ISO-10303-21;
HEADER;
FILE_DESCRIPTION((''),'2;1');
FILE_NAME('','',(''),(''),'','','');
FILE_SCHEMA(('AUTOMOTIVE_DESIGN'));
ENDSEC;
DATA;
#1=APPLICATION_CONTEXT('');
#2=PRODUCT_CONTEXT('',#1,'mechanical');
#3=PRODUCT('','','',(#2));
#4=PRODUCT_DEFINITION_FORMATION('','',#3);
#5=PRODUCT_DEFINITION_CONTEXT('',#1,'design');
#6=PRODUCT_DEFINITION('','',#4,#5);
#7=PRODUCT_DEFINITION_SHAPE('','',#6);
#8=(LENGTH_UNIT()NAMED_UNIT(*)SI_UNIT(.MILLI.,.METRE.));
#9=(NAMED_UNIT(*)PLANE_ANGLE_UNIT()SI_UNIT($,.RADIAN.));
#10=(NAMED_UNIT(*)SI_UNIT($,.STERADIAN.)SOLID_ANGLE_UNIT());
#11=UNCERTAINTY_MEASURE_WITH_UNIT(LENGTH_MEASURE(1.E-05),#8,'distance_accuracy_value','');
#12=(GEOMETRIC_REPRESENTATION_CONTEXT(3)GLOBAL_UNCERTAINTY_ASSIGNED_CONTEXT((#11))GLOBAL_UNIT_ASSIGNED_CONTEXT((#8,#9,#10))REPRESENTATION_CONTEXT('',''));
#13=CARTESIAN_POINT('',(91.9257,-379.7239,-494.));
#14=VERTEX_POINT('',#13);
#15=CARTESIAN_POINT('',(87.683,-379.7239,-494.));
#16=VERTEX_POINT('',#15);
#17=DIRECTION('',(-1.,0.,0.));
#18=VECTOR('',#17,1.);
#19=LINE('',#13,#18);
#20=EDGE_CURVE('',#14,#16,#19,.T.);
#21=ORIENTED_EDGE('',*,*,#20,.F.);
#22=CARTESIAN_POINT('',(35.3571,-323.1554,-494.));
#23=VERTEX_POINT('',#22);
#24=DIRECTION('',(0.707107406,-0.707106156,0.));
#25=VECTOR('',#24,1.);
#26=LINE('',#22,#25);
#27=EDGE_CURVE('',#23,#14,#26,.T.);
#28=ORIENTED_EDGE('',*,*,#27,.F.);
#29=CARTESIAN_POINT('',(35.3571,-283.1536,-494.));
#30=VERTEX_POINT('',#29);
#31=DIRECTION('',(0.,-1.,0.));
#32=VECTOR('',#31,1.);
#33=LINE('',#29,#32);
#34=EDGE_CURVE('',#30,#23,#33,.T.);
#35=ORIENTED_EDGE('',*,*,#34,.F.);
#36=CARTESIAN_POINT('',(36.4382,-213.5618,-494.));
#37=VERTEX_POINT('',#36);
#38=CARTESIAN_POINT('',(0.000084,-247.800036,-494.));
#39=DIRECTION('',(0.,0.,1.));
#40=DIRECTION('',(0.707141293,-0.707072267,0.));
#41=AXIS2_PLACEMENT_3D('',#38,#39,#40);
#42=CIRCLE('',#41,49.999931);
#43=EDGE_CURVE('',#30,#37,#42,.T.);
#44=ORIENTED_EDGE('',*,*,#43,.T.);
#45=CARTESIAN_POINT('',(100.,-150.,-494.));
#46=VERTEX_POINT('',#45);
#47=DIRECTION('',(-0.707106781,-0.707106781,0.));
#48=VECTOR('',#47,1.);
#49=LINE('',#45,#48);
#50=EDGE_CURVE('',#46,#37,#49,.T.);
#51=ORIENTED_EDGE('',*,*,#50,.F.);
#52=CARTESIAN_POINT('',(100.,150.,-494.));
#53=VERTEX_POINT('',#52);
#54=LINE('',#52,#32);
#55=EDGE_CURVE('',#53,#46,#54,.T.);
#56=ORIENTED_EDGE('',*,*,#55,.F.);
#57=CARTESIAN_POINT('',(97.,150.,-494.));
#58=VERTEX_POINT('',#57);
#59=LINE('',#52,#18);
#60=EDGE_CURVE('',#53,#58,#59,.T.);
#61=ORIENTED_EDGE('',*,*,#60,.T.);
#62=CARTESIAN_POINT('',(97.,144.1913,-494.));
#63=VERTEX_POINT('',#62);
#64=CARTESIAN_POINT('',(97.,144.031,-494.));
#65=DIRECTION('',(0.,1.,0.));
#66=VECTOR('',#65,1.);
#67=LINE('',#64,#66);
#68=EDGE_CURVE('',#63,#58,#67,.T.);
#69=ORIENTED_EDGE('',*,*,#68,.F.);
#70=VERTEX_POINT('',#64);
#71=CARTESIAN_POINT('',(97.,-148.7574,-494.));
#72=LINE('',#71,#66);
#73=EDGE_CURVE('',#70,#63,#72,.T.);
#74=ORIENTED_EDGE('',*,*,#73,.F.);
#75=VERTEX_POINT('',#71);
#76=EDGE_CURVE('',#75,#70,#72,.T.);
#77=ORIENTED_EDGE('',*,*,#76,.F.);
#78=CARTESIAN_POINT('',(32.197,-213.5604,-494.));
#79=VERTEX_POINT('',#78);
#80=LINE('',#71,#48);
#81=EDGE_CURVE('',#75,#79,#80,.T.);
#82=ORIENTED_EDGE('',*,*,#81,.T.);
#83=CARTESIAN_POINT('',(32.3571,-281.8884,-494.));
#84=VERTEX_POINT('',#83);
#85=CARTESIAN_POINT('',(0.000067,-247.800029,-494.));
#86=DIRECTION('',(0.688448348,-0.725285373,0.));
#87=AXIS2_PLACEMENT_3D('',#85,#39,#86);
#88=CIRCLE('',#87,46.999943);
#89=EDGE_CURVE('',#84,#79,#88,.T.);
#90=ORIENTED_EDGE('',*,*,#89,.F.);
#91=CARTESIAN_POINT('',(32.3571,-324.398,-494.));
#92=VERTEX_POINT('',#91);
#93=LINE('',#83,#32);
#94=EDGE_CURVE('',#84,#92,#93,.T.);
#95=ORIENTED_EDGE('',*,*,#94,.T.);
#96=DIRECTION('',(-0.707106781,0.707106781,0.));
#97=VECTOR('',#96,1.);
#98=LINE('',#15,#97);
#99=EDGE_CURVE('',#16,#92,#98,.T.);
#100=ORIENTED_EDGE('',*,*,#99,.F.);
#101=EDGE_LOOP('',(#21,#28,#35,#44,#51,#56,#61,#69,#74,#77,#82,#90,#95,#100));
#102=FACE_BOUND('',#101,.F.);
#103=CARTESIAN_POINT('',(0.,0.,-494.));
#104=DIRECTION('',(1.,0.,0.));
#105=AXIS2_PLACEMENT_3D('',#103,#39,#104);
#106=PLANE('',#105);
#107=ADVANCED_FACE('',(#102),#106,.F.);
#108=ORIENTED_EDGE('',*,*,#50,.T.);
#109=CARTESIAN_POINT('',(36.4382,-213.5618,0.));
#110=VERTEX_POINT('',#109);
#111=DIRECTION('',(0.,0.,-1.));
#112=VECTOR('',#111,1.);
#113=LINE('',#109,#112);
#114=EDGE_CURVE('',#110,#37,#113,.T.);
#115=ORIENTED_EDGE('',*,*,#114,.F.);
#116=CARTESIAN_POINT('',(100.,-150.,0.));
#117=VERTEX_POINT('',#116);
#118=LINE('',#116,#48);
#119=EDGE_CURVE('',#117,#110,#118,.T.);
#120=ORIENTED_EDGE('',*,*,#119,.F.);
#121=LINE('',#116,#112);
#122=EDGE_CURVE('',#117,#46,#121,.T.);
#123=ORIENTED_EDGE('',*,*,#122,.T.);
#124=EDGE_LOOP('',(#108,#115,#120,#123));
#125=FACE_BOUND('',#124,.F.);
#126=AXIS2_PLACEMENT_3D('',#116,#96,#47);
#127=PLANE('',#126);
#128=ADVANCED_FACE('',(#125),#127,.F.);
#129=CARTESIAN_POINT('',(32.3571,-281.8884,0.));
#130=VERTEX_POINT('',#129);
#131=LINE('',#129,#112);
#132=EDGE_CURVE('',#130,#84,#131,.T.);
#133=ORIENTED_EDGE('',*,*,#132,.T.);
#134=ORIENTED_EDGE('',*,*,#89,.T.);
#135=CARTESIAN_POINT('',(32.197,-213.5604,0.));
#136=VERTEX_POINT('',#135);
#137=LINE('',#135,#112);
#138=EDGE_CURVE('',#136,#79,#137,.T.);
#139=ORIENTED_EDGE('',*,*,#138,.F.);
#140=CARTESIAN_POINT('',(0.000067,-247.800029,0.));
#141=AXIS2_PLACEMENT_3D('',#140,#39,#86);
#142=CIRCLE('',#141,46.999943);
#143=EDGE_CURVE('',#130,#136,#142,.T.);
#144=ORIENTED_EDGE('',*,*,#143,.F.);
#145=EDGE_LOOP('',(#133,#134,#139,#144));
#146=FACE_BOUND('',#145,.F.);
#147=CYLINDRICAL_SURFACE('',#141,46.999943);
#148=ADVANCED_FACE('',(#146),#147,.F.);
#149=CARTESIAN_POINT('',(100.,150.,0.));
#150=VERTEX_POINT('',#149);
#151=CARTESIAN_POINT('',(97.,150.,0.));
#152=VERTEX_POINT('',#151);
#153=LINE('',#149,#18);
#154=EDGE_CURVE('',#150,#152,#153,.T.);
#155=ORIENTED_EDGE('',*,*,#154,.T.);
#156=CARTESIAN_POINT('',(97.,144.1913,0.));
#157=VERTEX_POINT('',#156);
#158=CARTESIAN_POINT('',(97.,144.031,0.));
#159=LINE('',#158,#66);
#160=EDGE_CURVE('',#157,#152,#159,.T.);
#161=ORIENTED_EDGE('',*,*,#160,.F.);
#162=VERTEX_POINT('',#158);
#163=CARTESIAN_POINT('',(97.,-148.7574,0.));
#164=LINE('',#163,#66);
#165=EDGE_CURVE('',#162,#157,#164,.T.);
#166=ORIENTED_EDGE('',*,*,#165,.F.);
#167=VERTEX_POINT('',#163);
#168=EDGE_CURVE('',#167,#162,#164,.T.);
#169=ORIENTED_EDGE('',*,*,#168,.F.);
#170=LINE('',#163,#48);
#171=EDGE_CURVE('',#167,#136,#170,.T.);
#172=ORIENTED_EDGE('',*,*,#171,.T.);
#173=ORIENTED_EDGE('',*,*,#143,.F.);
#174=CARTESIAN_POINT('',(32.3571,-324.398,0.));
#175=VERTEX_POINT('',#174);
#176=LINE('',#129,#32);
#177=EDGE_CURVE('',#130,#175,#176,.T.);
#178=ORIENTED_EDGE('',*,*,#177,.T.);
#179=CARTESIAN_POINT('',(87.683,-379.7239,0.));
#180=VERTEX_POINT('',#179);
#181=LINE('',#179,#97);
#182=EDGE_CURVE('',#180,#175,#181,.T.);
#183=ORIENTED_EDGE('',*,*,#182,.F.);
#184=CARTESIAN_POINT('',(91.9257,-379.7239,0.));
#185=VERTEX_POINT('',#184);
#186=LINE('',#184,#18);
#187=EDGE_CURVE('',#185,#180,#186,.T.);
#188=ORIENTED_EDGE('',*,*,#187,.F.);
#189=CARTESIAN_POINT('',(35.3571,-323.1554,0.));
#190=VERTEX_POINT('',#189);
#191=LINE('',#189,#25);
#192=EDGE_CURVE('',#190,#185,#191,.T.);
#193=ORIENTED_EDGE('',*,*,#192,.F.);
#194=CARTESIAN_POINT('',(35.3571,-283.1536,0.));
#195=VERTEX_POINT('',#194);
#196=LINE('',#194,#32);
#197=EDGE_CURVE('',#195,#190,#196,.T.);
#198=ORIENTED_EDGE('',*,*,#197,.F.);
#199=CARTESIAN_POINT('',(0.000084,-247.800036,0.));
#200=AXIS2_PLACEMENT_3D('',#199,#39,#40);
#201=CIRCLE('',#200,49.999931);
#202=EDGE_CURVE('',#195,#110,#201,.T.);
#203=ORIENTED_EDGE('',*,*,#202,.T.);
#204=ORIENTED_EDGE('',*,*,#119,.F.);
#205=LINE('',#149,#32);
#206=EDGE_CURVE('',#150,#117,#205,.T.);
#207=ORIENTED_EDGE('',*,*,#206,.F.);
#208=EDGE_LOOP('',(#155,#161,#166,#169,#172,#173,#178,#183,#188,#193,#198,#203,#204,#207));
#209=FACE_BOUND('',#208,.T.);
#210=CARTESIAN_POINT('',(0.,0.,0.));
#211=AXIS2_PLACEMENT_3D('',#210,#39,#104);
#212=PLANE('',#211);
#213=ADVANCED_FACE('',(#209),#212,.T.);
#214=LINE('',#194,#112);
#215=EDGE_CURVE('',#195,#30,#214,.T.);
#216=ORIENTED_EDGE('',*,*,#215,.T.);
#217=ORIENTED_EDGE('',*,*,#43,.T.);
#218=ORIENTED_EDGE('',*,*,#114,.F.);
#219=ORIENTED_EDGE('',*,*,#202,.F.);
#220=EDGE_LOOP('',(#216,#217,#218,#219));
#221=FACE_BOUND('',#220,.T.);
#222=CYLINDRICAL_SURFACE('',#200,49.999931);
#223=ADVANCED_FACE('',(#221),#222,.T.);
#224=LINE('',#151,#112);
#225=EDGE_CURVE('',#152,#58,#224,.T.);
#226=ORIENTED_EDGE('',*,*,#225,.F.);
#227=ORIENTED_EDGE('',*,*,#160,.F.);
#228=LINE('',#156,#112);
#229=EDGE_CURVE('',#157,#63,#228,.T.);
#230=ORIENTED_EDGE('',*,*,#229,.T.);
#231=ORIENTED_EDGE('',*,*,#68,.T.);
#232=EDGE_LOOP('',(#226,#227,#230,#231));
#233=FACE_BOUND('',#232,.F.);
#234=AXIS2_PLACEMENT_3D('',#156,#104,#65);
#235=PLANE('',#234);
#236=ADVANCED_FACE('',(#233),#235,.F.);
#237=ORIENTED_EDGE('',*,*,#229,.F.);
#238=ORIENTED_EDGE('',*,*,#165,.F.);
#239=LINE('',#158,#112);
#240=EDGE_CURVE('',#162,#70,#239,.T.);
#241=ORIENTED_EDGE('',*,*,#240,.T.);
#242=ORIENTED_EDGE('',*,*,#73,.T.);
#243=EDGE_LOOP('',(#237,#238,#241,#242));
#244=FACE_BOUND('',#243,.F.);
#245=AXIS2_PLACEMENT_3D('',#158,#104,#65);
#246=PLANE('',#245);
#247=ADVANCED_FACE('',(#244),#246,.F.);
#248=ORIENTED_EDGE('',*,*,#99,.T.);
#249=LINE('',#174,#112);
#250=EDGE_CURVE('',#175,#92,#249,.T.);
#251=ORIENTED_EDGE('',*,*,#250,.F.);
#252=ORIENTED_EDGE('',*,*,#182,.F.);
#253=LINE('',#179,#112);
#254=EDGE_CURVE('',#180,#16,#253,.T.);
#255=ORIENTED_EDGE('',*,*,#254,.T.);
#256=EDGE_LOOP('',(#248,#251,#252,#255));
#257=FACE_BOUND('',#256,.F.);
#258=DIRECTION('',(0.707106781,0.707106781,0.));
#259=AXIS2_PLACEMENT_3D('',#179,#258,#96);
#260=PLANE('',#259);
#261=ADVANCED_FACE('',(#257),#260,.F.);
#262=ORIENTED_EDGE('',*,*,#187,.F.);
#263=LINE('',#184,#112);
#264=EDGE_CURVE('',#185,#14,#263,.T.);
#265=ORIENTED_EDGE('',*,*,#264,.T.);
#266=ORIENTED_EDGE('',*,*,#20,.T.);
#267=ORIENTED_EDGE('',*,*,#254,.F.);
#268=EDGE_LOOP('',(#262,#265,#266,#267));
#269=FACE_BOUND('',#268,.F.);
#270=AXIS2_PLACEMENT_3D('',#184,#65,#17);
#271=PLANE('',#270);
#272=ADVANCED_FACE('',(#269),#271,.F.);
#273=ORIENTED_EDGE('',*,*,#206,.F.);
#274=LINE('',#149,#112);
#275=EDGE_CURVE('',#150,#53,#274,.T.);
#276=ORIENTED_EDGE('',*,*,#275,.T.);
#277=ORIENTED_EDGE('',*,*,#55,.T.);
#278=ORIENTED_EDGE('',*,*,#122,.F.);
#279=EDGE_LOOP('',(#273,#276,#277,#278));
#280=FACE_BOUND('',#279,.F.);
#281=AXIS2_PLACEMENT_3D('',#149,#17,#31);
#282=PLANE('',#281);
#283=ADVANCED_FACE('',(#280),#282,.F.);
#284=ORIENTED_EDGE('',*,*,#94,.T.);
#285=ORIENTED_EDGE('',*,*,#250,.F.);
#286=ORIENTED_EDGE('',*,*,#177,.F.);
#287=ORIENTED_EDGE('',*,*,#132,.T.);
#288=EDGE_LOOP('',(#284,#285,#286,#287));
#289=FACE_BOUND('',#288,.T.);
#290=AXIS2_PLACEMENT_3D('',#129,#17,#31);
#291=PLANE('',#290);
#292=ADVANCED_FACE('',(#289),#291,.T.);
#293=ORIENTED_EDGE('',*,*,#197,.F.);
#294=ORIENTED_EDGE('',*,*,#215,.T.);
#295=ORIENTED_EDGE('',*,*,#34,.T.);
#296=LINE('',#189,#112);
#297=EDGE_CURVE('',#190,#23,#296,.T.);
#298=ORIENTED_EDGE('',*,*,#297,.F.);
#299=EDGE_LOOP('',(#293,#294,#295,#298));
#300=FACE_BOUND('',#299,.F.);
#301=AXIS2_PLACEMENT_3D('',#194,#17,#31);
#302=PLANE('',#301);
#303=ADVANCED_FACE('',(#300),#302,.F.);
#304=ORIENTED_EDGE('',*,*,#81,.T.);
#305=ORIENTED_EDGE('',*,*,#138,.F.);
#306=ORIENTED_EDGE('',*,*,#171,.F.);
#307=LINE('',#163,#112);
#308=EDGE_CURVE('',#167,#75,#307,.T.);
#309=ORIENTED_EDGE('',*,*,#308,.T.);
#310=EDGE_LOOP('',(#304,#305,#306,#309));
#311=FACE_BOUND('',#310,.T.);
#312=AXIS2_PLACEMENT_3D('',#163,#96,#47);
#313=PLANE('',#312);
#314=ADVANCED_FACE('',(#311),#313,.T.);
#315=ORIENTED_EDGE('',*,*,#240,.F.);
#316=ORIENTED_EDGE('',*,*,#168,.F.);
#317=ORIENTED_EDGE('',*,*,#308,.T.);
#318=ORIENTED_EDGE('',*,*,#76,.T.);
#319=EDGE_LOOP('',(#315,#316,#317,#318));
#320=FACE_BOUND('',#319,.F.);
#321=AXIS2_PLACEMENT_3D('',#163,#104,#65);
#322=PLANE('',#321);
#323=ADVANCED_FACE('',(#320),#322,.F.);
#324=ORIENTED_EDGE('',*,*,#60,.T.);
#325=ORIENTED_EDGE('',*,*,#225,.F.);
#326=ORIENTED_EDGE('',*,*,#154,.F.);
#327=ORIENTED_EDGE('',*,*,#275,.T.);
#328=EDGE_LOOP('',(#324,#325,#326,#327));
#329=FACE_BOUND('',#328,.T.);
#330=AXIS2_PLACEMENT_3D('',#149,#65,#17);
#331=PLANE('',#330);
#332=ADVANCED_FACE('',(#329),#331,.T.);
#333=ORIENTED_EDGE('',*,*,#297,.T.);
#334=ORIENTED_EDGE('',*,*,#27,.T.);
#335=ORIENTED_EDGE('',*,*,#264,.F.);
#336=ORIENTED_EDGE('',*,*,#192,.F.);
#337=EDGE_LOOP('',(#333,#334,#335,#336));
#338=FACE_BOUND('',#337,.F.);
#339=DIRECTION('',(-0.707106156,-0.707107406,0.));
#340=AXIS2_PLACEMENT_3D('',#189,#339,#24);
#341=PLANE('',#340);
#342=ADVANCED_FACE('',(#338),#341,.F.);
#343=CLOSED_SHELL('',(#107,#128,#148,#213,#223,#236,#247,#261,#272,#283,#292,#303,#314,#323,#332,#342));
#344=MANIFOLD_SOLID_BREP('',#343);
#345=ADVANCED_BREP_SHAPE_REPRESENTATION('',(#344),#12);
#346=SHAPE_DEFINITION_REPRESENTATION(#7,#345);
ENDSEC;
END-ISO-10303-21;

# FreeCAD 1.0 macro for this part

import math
import FreeCAD as App
import Part
import Sketcher

V = App.Vector
Q = App.Units.Quantity

doc = App.newDocument("Part")
params = doc.addObject("Spreadsheet::Sheet", "Params")
for row, (alias, value) in enumerate([
    ("sketch1_radius", "47 mm"),
    ("sketch1_width", "3 mm"),
    ("sketch1_radius2", "50 mm"),
    ("sketch1_height", "300 mm"),
    ("sketch1_length", "80 mm"),
    ("pad1_length", "494 mm"),
], start=1):
    params.set(f"A{row}", alias)
    params.set(f"B{row}", "=" + value)
    params.setAlias(f"B{row}", alias)

body = doc.addObject("PartDesign::Body", "Body")

# Sketch on XY plane
sketch1 = body.newObject("Sketcher::SketchObject", "Sketch")
sketch1.AttachmentSupport = (doc.getObject("XY_Plane"), [""])
sketch1.MapMode = "FlatFace"
sketch1.addGeometry(Part.LineSegment(V(100, -150, 0), V(100, 150, 0)), False)
sketch1.addGeometry(Part.LineSegment(V(100, 150, 0), V(97, 150, 0)), False)
sketch1.addGeometry(Part.LineSegment(V(97, 150, 0), V(97, -148.8, 0)), False)
sketch1.addGeometry(Part.LineSegment(V(97, -148.8, 0), V(32.2, -213.6, 0)), False)
sketch1.addGeometry(Part.ArcOfCircle(Part.Circle(V(0, -247.8, 0), V(0, 0, 1), 47), math.radians(-46), math.radians(47)), False)
sketch1.addGeometry(Part.LineSegment(V(32.4, -281.9, 0), V(32.4, -324.4, 0)), False)
sketch1.addGeometry(Part.LineSegment(V(32.4, -324.4, 0), V(87.7, -379.7, 0)), False)
sketch1.addGeometry(Part.LineSegment(V(87.7, -379.7, 0), V(91.9, -379.7, 0)), False)
sketch1.addGeometry(Part.LineSegment(V(91.9, -379.7, 0), V(35.4, -323.2, 0)), False)
sketch1.addGeometry(Part.LineSegment(V(35.4, -323.2, 0), V(35.4, -283.2, 0)), False)
sketch1.addGeometry(Part.ArcOfCircle(Part.Circle(V(0, -247.8, 0), V(0, 0, 1), 50), math.radians(-45), math.radians(43)), False)
sketch1.addGeometry(Part.LineSegment(V(36.4, -213.6, 0), V(100, -150, 0)), False)
sketch1.addConstraint(Sketcher.Constraint("Coincident", 0, 2, 1, 1))
sketch1.addConstraint(Sketcher.Constraint("Coincident", 1, 2, 2, 1))
sketch1.addConstraint(Sketcher.Constraint("Coincident", 2, 2, 3, 1))
sketch1.addConstraint(Sketcher.Constraint("Coincident", 3, 2, 4, 2))
sketch1.addConstraint(Sketcher.Constraint("Coincident", 4, 1, 5, 1))
sketch1.addConstraint(Sketcher.Constraint("Coincident", 5, 2, 6, 1))
sketch1.addConstraint(Sketcher.Constraint("Coincident", 6, 2, 7, 1))
sketch1.addConstraint(Sketcher.Constraint("Coincident", 7, 2, 8, 1))
sketch1.addConstraint(Sketcher.Constraint("Coincident", 8, 2, 9, 1))
sketch1.addConstraint(Sketcher.Constraint("Coincident", 9, 2, 10, 1))
sketch1.addConstraint(Sketcher.Constraint("Coincident", 10, 2, 11, 1))
sketch1.addConstraint(Sketcher.Constraint("Coincident", 11, 2, 0, 1))
sketch1.addConstraint(Sketcher.Constraint("Vertical", 0))
sketch1.addConstraint(Sketcher.Constraint("Horizontal", 1))
sketch1.addConstraint(Sketcher.Constraint("Vertical", 2))
sketch1.addConstraint(Sketcher.Constraint("Vertical", 5))
sketch1.addConstraint(Sketcher.Constraint("Horizontal", 7))
sketch1.addConstraint(Sketcher.Constraint("Vertical", 9))
sketch1.addConstraint(Sketcher.Constraint("Coincident", 10, 3, 4, 3))
sketch1.addConstraint(Sketcher.Constraint("PointOnObject", 4, 3, -2))
sketch1.addConstraint(Sketcher.Constraint("Perpendicular", 3, 6))
sketch1.addConstraint(Sketcher.Constraint("Parallel", 6, 8))
sketch1.addConstraint(Sketcher.Constraint("Perpendicular", 8, 11))
sketch1.addConstraint(Sketcher.Constraint("Radius", 4, 47.0))
sketch1.addConstraint(Sketcher.Constraint("DistanceX", 1, 2, 1, 1, 3.0))
sketch1.addConstraint(Sketcher.Constraint("Radius", 10, 50.0))
sketch1.addConstraint(Sketcher.Constraint("DistanceX", 5, 2, 8, 2, 3.0))
sketch1.addConstraint(Sketcher.Constraint("DistanceY", 0, 1, 0, 2, 300.0))
sketch1.addConstraint(Sketcher.Constraint("Angle", 3, Q("-135 deg")))
sketch1.addConstraint(Sketcher.Constraint("Distance", 8, 80.0))
sketch1.addConstraint(Sketcher.Constraint("DistanceX", -1, 1, 0, 2, 100.0))
sketch1.addConstraint(Sketcher.Constraint("DistanceY", -1, 1, 0, 2, 150.0))
sketch1.addConstraint(Sketcher.Constraint("DistanceY", 4, 3, -1, 1, 247.8))
sketch1.addConstraint(Sketcher.Constraint("DistanceX", 3, 2, 4, 1, 0.16))
sketch1.addConstraint(Sketcher.Constraint("DistanceX", 7, 1, 7, 2, 4.2427))
sketch1.addConstraint(Sketcher.Constraint("DistanceY", 2, 2, 2, 1, 298.7574))
sketch1.addConstraint(Sketcher.Constraint("DistanceY", 5, 2, 5, 1, 42.5096))
sketch1.setExpression("Constraints[23]", "Params.sketch1_radius")
sketch1.setExpression("Constraints[24]", "Params.sketch1_width")
sketch1.setExpression("Constraints[25]", "Params.sketch1_radius2")
sketch1.setExpression("Constraints[27]", "Params.sketch1_height")
sketch1.setExpression("Constraints[29]", "Params.sketch1_length")
pad1 = body.newObject("PartDesign::Pad", "Pad")
pad1.Profile = sketch1
pad1.setExpression("Length", "Params.pad1_length")
pad1.Reversed = True

doc.recompute()
